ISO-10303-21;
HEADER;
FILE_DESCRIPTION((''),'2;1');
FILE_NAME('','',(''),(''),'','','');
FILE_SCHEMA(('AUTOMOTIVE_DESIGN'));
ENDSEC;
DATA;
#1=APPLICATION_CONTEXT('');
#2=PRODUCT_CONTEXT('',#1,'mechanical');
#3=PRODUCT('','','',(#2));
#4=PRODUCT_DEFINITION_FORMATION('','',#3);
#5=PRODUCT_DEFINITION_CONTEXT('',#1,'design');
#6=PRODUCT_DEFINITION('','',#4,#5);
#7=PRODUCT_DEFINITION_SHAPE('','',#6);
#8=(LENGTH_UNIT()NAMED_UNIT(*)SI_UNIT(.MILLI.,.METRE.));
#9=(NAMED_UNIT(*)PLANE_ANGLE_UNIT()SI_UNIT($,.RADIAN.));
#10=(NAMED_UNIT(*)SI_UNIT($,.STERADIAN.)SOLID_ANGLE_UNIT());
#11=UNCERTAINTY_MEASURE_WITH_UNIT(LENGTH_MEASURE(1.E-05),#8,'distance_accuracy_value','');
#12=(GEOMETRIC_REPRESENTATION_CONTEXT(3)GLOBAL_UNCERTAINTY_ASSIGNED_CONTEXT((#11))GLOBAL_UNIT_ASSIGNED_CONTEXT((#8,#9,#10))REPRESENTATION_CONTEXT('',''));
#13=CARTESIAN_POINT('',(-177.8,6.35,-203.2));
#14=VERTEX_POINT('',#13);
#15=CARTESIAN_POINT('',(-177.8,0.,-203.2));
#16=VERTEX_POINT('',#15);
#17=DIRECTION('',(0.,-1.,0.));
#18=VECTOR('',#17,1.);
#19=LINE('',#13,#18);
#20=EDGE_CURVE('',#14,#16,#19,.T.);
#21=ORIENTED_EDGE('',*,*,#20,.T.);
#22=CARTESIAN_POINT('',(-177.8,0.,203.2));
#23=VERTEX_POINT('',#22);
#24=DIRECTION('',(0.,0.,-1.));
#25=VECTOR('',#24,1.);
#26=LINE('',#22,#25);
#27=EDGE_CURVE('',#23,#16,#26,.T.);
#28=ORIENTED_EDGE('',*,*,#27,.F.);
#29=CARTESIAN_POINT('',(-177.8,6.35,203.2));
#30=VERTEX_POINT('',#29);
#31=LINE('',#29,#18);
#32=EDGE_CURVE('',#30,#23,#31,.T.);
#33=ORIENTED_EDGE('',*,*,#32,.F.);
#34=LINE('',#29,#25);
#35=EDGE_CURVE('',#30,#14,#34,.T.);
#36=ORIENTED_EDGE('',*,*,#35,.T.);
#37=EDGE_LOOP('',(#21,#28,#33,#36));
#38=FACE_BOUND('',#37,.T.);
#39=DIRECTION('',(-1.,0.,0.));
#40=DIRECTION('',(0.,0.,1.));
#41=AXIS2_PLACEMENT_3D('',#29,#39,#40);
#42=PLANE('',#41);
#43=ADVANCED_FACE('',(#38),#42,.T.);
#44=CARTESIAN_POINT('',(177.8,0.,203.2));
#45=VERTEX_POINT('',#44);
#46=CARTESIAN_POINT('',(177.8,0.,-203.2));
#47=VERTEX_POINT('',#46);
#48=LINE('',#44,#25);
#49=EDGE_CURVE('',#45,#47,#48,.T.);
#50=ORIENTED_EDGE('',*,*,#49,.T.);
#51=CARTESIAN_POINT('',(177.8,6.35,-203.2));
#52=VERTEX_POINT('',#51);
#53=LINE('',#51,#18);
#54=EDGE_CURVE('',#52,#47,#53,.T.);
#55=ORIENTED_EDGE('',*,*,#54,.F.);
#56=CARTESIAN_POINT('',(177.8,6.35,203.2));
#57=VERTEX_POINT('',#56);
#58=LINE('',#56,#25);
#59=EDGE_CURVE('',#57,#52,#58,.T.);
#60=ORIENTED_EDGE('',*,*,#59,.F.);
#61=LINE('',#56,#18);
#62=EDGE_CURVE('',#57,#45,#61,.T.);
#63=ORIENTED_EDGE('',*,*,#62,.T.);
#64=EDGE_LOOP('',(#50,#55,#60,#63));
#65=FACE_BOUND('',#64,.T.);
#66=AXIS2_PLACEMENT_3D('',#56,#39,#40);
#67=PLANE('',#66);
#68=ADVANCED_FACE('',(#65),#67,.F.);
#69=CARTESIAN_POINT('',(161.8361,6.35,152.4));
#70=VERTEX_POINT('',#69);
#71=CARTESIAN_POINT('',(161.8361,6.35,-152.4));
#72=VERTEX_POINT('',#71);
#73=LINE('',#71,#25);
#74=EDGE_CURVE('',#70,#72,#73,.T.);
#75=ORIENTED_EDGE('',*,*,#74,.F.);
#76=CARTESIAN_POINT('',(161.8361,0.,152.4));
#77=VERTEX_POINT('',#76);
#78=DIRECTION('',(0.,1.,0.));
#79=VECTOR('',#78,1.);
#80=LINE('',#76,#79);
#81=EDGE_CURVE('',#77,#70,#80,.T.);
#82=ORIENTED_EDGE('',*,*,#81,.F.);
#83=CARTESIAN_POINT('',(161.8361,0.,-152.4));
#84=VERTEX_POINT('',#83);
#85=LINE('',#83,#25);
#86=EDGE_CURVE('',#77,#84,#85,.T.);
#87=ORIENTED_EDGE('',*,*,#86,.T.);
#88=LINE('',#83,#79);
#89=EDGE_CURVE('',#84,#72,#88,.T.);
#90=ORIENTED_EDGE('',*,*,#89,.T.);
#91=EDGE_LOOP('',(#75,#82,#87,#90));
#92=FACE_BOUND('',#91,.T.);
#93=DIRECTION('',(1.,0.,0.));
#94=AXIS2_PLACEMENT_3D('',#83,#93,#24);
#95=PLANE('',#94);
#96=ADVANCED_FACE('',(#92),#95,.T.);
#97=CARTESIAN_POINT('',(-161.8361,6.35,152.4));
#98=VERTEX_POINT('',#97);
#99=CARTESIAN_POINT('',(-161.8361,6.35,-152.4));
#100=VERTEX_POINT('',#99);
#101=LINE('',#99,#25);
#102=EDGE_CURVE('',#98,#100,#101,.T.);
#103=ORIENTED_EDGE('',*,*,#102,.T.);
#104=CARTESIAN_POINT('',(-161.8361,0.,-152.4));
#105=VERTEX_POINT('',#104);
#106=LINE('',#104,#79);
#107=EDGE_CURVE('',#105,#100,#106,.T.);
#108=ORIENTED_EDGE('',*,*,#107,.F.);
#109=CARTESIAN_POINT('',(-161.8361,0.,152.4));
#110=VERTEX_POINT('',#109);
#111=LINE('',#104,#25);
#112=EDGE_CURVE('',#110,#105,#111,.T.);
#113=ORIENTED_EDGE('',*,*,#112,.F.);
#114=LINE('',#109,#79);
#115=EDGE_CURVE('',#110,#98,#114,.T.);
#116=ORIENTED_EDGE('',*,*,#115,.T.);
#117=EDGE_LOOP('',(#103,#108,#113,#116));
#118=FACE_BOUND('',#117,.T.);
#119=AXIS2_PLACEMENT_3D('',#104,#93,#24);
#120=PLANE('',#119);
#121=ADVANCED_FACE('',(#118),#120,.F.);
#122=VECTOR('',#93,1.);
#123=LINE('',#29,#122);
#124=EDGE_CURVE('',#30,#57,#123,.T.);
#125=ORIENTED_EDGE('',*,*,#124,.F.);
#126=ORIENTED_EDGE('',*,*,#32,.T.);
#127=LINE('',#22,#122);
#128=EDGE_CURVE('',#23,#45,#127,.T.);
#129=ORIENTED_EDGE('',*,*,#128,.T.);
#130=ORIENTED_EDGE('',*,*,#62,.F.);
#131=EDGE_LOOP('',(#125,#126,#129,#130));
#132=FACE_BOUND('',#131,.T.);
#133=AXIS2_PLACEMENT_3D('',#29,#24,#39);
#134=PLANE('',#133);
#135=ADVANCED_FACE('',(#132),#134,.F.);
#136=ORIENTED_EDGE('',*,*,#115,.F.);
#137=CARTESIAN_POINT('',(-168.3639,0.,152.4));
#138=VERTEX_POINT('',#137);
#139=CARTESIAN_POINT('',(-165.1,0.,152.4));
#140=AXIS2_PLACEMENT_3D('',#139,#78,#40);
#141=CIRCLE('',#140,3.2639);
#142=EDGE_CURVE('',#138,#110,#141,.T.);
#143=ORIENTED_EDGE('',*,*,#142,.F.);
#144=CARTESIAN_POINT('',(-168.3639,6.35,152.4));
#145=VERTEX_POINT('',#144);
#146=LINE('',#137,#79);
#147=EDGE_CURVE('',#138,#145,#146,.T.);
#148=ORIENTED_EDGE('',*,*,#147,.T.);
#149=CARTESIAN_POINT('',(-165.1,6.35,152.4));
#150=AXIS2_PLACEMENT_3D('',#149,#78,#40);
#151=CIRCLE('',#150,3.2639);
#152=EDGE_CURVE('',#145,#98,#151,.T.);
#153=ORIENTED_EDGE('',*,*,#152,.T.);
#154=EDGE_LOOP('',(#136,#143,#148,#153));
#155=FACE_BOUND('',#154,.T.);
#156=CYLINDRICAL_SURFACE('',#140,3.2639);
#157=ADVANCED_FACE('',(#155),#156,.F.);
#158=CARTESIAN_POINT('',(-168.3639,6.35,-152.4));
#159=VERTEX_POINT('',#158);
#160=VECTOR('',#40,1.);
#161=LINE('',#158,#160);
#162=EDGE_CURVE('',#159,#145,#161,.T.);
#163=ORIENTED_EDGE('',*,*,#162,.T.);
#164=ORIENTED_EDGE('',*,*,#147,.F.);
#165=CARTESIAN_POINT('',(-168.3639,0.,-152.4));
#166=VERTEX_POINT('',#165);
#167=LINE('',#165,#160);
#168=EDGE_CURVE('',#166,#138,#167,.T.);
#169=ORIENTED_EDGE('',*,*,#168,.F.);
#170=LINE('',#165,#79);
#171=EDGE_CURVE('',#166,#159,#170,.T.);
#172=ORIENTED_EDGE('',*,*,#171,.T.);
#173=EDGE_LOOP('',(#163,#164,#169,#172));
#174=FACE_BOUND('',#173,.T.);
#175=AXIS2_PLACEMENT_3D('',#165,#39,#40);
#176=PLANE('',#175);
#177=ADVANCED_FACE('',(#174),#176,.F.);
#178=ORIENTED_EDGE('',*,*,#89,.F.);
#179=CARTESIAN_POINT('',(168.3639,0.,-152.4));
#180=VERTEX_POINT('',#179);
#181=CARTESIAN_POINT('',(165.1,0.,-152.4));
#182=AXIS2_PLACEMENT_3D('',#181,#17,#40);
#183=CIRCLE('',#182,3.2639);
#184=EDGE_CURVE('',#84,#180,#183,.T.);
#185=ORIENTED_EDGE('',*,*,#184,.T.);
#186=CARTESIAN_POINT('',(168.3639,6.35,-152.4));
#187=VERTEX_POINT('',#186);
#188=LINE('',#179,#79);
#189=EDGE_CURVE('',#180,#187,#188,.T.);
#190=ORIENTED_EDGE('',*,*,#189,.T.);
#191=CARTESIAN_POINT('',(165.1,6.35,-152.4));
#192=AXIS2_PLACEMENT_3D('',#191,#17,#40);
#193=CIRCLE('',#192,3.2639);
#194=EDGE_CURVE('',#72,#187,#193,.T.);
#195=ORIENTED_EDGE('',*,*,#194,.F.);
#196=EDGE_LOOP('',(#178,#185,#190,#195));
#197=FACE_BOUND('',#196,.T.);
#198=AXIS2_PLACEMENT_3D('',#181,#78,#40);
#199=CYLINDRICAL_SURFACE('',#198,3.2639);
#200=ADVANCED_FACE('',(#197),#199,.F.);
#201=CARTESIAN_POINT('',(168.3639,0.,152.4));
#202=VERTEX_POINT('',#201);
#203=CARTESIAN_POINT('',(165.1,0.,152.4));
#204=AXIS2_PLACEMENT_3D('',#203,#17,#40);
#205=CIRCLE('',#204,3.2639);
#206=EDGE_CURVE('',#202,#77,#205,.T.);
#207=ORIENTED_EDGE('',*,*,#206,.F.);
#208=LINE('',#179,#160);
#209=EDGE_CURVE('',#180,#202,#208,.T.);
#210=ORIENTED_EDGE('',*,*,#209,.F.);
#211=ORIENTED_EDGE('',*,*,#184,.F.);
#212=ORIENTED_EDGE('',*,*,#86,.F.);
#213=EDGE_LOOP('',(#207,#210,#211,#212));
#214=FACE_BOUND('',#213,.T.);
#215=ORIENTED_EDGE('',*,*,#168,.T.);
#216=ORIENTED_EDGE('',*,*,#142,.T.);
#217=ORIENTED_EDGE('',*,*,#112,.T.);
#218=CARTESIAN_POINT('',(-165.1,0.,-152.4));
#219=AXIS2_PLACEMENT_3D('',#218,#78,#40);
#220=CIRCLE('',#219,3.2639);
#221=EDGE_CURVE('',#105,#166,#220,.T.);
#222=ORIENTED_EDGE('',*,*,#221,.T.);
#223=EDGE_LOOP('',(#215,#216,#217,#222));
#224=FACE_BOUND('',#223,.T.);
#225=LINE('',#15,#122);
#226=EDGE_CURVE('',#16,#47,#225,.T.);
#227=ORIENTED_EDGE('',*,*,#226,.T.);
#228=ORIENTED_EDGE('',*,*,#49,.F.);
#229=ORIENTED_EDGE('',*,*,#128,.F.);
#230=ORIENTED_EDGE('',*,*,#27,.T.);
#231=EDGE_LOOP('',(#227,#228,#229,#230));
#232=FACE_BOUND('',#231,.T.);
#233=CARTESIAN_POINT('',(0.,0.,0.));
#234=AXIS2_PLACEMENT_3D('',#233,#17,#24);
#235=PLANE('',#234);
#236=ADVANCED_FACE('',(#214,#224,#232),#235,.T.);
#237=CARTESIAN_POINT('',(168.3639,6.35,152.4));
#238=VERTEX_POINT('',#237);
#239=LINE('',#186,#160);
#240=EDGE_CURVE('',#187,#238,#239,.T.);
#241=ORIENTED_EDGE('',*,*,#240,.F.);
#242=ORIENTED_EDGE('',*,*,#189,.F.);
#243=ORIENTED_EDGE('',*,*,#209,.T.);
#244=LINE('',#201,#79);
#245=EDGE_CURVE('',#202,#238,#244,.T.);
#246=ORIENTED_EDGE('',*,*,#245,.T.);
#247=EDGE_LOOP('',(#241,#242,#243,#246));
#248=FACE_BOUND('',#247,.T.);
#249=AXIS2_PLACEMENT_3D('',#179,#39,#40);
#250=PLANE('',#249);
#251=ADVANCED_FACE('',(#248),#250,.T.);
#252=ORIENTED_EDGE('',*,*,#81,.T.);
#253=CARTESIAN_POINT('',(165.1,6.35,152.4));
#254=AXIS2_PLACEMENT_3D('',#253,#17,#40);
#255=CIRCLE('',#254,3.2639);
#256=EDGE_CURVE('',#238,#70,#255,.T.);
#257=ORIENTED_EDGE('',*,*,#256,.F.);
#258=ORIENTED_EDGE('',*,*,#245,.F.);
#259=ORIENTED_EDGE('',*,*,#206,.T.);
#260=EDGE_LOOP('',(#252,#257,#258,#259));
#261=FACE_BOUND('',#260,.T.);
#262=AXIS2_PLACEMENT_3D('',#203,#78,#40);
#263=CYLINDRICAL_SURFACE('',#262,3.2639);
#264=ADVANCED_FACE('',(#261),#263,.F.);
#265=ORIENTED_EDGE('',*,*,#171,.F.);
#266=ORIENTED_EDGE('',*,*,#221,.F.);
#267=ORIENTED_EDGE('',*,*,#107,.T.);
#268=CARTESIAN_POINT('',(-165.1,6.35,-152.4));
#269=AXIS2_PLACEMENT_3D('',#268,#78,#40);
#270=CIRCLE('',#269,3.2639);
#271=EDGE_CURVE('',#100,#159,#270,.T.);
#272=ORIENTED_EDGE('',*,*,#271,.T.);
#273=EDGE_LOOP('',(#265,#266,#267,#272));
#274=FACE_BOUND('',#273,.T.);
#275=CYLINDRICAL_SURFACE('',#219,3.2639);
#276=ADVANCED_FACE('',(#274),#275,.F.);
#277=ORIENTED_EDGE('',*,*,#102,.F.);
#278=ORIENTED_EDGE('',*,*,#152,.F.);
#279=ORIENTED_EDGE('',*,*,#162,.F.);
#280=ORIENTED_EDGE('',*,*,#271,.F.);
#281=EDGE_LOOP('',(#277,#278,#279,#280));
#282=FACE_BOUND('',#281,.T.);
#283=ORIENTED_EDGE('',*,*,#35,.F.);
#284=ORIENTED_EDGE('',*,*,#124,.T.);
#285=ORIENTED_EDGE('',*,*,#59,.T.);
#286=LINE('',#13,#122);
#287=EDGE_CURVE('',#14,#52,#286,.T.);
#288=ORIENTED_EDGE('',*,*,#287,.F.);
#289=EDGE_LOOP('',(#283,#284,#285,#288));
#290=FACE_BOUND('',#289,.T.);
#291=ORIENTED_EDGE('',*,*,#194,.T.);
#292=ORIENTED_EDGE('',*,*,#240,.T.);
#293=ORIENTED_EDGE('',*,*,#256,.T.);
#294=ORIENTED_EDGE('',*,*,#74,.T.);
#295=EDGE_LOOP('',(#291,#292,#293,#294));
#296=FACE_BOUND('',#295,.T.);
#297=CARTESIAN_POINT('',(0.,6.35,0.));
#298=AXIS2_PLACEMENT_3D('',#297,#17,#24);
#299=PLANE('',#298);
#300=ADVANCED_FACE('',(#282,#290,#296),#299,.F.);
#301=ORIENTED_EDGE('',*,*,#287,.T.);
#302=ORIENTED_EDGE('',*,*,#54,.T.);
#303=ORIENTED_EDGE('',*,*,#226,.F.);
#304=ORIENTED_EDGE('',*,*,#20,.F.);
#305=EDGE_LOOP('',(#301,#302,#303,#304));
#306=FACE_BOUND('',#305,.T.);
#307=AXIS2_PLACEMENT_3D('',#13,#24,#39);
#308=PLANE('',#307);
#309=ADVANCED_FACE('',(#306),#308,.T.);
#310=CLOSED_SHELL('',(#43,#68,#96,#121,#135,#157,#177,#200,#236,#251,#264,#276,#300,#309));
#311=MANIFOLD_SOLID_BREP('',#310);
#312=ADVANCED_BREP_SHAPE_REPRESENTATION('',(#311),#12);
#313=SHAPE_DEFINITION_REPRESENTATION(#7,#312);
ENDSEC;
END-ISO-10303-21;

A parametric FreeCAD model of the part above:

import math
import FreeCAD as App
import Part
import Sketcher

V = App.Vector
Q = App.Units.Quantity


def add_polygon(sketch, points):
    """Adds a closed chain of lines whose ends are joined by coincident constraints."""
    first, n = sketch.GeometryCount, len(points)
    for a, b in zip(points, points[1:] + points[:1]):
        sketch.addGeometry(Part.LineSegment(App.Vector(*a, 0), App.Vector(*b, 0)), False)
    for i in range(n):
        sketch.addConstraint(Sketcher.Constraint("Coincident", first + i, 2, first + (i + 1) % n, 1))

doc = App.newDocument("Part")
body = doc.addObject("PartDesign::Body", "Body")

# Sketch on XZ plane
sketch1 = body.newObject("Sketcher::SketchObject", "Sketch")
sketch1.AttachmentSupport = (doc.getObject("XZ_Plane"), [""])
sketch1.MapMode = "FlatFace"
add_polygon(sketch1, [(-178, -203), (-178, 203), (178, 203), (178, -203)])  # lines 0-3
sketch1.addConstraint(Sketcher.Constraint("Vertical", 0))
sketch1.addConstraint(Sketcher.Constraint("Horizontal", 1))
sketch1.addConstraint(Sketcher.Constraint("Vertical", 2))
sketch1.addConstraint(Sketcher.Constraint("Horizontal", 3))
sketch1.addConstraint(Sketcher.Constraint("Symmetric", 0, 2, 2, 2, -1, 1))
sketch1.addConstraint(Sketcher.Constraint("DistanceX", 1, 1, 1, 2, Q("14 in")))
sketch1.addConstraint(Sketcher.Constraint("DistanceY", 0, 1, 0, 2, Q("16 in")))
pad1 = body.newObject("PartDesign::Pad", "Pad")
pad1.Profile = sketch1
pad1.Length = Q("0.25 in")
pad1.Reversed = True

# Sketch on XZ plane
sketch2 = body.newObject("Sketcher::SketchObject", "Sketch001")
sketch2.AttachmentSupport = (doc.getObject("XZ_Plane"), [""])
sketch2.MapMode = "FlatFace"
sketch2.AttachmentOffset = App.Placement(V(0, 0, -0.25 * 25.4), App.Rotation())
sketch2.addGeometry(Part.LineSegment(V(-161.8, 152.4, 0), V(-161.8, -152.4, 0)), False)
sketch2.addGeometry(Part.ArcOfCircle(Part.Circle(V(-165.1, -152.4, 0), V(0, 0, 1), 3.3), math.radians(180), math.radians(360)), False)
sketch2.addGeometry(Part.LineSegment(V(-168.4, -152.4, 0), V(-168.4, 152.4, 0)), False)
sketch2.addGeometry(Part.ArcOfCircle(Part.Circle(V(-165.1, 152.4, 0), V(0, 0, 1), 3.3), math.radians(0), math.radians(180)), False)
sketch2.addConstraint(Sketcher.Constraint("Tangent", 0, 2, 1, 2))
sketch2.addConstraint(Sketcher.Constraint("Tangent", 1, 1, 2, 1))
sketch2.addConstraint(Sketcher.Constraint("Tangent", 2, 2, 3, 2))
sketch2.addConstraint(Sketcher.Constraint("Tangent", 3, 1, 0, 1))
sketch2.addConstraint(Sketcher.Constraint("Vertical", 0))
sketch2.addConstraint(Sketcher.Constraint("Vertical", 2))
sketch2.addConstraint(Sketcher.Constraint("DistanceY", 0, 2, 0, 1, Q("12 in")))
sketch2.addConstraint(Sketcher.Constraint("DistanceY", 1, 3, -1, 1, Q("6 in")))
sketch2.addConstraint(Sketcher.Constraint("DistanceX", 1, 3, -1, 1, Q("6.5 in")))
sketch2.addConstraint(Sketcher.Constraint("Radius", 1, Q("0.1285 in")))
pocket1 = body.newObject("PartDesign::Pocket", "Pocket")
pocket1.Profile = sketch2
pocket1.Length = Q("0.25 in")
pocket1.Reversed = True
doc.recompute()

mirrored = body.newObject("PartDesign::Mirrored", "Mirrored")
mirrored.Originals = [pocket1]
mirrored.MirrorPlane = (doc.getObject("YZ_Plane"), [""])
body.Tip = mirrored

doc.recompute()
